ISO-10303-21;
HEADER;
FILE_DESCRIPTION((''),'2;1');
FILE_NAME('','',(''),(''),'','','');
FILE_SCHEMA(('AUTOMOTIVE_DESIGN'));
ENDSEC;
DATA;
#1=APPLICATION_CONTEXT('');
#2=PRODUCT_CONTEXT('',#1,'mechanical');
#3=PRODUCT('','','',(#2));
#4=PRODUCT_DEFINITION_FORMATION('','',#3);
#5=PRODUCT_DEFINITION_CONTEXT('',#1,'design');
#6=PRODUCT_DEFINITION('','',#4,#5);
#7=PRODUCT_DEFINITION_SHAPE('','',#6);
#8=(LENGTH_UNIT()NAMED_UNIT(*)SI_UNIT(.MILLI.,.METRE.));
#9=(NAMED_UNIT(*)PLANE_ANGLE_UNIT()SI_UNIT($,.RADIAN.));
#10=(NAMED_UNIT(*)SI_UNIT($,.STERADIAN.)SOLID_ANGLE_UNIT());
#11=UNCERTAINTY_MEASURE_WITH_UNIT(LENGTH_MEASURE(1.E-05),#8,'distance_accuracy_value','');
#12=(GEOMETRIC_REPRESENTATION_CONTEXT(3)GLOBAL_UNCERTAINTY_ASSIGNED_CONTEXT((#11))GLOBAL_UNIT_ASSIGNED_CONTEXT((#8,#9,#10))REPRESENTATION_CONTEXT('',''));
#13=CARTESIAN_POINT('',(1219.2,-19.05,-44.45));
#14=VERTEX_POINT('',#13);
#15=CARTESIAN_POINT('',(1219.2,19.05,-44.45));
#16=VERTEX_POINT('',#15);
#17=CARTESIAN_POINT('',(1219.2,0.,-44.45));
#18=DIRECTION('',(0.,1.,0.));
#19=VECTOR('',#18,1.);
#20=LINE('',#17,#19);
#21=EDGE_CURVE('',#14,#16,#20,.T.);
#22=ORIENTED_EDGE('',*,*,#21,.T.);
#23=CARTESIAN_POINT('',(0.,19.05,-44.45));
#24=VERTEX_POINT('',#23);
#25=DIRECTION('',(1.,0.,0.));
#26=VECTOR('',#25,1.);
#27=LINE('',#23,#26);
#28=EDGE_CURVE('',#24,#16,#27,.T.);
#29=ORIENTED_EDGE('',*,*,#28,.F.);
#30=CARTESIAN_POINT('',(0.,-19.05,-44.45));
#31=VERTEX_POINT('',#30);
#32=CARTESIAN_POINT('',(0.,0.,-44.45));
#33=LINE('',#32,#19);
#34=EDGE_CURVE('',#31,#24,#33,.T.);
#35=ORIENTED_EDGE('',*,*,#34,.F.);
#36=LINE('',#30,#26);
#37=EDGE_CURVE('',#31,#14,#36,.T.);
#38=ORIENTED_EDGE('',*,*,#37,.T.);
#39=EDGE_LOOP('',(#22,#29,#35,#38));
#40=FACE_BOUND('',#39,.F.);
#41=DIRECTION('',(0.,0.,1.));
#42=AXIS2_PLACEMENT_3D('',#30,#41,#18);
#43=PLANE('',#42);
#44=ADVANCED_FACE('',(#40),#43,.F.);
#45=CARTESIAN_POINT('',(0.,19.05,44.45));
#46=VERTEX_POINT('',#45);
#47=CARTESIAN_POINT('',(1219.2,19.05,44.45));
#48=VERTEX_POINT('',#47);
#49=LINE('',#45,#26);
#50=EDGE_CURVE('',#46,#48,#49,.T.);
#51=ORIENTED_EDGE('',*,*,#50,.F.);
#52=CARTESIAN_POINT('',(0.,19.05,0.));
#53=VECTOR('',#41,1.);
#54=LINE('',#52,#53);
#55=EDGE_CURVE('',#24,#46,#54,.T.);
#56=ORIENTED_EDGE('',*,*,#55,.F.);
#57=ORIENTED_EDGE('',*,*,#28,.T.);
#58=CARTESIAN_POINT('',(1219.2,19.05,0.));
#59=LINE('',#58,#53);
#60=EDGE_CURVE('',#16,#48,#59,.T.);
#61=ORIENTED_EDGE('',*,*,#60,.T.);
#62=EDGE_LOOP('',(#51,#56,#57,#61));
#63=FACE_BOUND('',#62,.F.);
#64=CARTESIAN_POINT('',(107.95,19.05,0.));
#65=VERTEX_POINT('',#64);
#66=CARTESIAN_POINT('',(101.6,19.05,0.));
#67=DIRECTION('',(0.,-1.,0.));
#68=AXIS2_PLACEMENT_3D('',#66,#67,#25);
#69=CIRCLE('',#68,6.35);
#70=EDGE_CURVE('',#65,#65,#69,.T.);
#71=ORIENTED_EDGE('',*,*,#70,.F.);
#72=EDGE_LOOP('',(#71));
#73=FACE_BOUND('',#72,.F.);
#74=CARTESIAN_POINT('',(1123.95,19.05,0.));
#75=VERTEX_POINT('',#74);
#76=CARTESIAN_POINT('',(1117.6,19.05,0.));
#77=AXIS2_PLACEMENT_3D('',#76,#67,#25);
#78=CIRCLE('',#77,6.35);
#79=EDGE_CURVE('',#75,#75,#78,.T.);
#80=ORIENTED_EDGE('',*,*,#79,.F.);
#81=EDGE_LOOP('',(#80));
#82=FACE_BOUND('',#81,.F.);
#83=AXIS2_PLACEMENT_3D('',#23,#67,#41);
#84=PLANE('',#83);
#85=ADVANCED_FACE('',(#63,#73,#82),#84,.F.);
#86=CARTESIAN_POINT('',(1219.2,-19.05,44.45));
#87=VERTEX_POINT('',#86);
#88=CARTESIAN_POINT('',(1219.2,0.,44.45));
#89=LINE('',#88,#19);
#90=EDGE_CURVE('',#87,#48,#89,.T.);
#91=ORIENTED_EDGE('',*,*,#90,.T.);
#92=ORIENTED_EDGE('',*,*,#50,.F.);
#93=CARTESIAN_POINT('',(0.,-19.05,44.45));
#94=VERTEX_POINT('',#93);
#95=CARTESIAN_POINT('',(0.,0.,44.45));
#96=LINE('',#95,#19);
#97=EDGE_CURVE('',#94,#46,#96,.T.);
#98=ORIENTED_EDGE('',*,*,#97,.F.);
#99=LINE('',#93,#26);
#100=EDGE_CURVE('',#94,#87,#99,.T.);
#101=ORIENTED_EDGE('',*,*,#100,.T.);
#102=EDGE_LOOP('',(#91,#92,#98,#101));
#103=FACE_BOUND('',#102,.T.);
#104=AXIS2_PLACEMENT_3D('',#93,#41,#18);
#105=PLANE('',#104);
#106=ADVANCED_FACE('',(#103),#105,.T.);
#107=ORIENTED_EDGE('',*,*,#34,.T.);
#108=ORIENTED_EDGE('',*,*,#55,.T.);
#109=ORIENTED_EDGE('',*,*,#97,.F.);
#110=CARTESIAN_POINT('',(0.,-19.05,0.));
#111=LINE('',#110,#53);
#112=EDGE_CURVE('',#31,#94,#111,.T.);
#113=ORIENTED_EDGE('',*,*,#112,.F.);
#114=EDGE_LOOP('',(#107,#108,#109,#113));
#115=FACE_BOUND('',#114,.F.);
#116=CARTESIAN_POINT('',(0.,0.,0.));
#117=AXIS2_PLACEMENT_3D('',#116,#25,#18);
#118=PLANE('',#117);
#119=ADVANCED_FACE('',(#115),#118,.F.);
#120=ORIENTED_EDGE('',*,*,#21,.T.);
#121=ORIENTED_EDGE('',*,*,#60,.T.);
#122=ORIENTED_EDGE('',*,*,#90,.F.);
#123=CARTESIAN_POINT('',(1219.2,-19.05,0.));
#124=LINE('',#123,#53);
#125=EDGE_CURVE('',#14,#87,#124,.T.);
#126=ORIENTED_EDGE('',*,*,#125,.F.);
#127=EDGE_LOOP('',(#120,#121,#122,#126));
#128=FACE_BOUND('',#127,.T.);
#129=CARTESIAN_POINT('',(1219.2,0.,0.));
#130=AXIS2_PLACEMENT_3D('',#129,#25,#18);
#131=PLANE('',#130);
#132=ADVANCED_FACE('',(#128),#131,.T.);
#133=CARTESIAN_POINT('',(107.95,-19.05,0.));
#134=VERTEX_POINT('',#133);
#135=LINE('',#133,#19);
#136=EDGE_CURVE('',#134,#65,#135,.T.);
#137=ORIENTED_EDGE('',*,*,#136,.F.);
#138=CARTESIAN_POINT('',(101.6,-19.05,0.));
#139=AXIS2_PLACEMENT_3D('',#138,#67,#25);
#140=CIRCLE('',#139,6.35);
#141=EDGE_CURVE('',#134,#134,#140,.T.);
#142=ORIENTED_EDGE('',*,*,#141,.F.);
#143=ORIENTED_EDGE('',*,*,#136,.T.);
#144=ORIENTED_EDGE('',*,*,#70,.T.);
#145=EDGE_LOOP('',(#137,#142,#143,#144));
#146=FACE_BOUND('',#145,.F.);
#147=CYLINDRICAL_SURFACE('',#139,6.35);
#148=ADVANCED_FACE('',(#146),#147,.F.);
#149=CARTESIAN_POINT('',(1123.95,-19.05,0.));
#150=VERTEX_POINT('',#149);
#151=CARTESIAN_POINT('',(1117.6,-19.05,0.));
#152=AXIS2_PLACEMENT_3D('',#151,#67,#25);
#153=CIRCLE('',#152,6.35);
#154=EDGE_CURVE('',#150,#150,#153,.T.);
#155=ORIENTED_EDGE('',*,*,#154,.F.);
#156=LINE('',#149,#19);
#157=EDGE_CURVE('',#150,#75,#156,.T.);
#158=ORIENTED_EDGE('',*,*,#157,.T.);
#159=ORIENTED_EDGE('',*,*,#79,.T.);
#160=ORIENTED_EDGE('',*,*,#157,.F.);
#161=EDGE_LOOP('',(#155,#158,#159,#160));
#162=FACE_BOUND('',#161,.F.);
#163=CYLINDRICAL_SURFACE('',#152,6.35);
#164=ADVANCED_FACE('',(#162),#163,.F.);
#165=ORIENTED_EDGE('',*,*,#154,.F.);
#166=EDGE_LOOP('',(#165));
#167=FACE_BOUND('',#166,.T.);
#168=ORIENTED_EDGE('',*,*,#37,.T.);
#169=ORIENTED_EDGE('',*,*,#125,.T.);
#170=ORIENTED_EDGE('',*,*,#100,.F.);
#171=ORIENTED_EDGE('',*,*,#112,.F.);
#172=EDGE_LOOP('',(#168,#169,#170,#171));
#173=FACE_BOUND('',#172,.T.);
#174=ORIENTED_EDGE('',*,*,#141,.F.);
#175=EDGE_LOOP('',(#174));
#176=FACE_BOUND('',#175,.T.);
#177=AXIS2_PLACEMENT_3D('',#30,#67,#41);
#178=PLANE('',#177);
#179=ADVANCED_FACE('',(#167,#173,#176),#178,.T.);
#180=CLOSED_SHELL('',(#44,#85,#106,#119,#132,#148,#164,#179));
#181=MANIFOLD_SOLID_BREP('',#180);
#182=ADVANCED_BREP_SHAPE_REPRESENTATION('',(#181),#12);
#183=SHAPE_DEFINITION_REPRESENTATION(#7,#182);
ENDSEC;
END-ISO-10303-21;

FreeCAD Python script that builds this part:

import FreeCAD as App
import Part
import Sketcher
from FreeCAD import Vector
Q = App.Units.Quantity

doc = App.newDocument("Part")
params = doc.addObject("Spreadsheet::Sheet", "Params")
for row, (alias, value) in enumerate([
    ("sketch1_width", "1.5 in"),
    ("sketch1_height", "3.5 in"),
    ("pad1_length", "48 in"),
    ("sketch2_diameter", "0.5 in"),
    ("sketch3_diameter", "0.5 in"),
], start=1):
    params.set(f"A{row}", alias)
    params.set(f"B{row}", "=" + value)
    params.setAlias(f"B{row}", alias)

body = doc.addObject("PartDesign::Body", "Body")

# Sketch on YZ plane
sketch1 = body.newObject("Sketcher::SketchObject", "Sketch")
sketch1.AttachmentSupport = (doc.getObject("YZ_Plane"), [""])
sketch1.MapMode = "FlatFace"
sketch1.addGeometry(Part.LineSegment(Vector(-19.05, 44.45, 0), Vector(-19.05, -44.45, 0)), False)
sketch1.addGeometry(Part.LineSegment(Vector(-19.05, -44.45, 0), Vector(19.05, -44.45, 0)), False)
sketch1.addGeometry(Part.LineSegment(Vector(19.05, -44.45, 0), Vector(19.05, 44.45, 0)), False)
sketch1.addGeometry(Part.LineSegment(Vector(19.05, 44.45, 0), Vector(-19.05, 44.45, 0)), False)
sketch1.addConstraint(Sketcher.Constraint("Coincident", 0, 2, 1, 1))
sketch1.addConstraint(Sketcher.Constraint("Coincident", 1, 2, 2, 1))
sketch1.addConstraint(Sketcher.Constraint("Coincident", 2, 2, 3, 1))
sketch1.addConstraint(Sketcher.Constraint("Coincident", 3, 2, 0, 1))
sketch1.addConstraint(Sketcher.Constraint("Vertical", 0))
sketch1.addConstraint(Sketcher.Constraint("Horizontal", 1))
sketch1.addConstraint(Sketcher.Constraint("Vertical", 2))
sketch1.addConstraint(Sketcher.Constraint("Horizontal", 3))
sketch1.addConstraint(Sketcher.Constraint("Symmetric", 0, 2, 2, 2, -1, 1))
sketch1.addConstraint(Sketcher.Constraint("DistanceX", 1, 1, 1, 2, Q("1.5 in")))
sketch1.addConstraint(Sketcher.Constraint("DistanceY", 0, 2, 0, 1, Q("3.5 in")))
sketch1.setExpression("Constraints[9]", "Params.sketch1_width")
sketch1.setExpression("Constraints[10]", "Params.sketch1_height")
pad1 = body.newObject("PartDesign::Pad", "Pad")
pad1.Profile = sketch1
pad1.setExpression("Length", "Params.pad1_length")

# Sketch on XZ plane
sketch2 = body.newObject("Sketcher::SketchObject", "Sketch001")
sketch2.AttachmentSupport = (doc.getObject("XZ_Plane"), [""])
sketch2.MapMode = "FlatFace"
sketch2.AttachmentOffset = App.Placement(Vector(0, 0, 0.75 * 25.4), App.Rotation())
sketch2.addGeometry(Part.Circle(Vector(101.6, 0, 0), Vector(0, 0, 1), 6.35), False)
sketch2.addConstraint(Sketcher.Constraint("PointOnObject", 0, 3, -1))
sketch2.addConstraint(Sketcher.Constraint("Diameter", 0, Q("0.5 in")))
sketch2.addConstraint(Sketcher.Constraint("DistanceX", -1, 1, 0, 3, Q("4 in")))
sketch2.setExpression("Constraints[1]", "Params.sketch2_diameter")
pocket1 = body.newObject("PartDesign::Pocket", "Pocket")
pocket1.Profile = sketch2
pocket1.Type = "ThroughAll"

# Sketch on XZ plane
sketch3 = body.newObject("Sketcher::SketchObject", "Sketch002")
sketch3.AttachmentSupport = (doc.getObject("XZ_Plane"), [""])
sketch3.MapMode = "FlatFace"
sketch3.AttachmentOffset = App.Placement(Vector(0, 0, 0.75 * 25.4), App.Rotation())
sketch3.addGeometry(Part.Circle(Vector(1117.6, 0, 0), Vector(0, 0, 1), 6.35), False)
sketch3.addConstraint(Sketcher.Constraint("PointOnObject", 0, 3, -1))
sketch3.addConstraint(Sketcher.Constraint("Diameter", 0, Q("0.5 in")))
sketch3.addConstraint(Sketcher.Constraint("DistanceX", -1, 1, 0, 3, Q("44 in")))
sketch3.setExpression("Constraints[1]", "Params.sketch3_diameter")
pocket2 = body.newObject("PartDesign::Pocket", "Pocket001")
pocket2.Profile = sketch3
pocket2.Type = "ThroughAll"

doc.recompute()
